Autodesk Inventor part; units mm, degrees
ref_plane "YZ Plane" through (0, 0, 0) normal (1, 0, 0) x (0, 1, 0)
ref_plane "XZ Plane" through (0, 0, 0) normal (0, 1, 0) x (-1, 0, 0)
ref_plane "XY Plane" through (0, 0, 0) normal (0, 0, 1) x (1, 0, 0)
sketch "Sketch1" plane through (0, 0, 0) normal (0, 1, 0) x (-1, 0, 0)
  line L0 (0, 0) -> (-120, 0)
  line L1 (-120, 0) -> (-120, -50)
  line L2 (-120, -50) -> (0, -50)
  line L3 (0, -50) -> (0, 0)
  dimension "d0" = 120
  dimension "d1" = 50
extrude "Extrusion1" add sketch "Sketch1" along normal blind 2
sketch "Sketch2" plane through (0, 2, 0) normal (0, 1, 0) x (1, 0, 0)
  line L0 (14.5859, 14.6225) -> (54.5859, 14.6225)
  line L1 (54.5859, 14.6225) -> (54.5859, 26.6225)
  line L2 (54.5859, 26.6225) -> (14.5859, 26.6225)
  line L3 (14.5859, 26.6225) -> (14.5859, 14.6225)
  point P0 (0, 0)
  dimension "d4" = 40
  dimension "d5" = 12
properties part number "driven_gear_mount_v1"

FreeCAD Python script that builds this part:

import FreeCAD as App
import Part
import Sketcher
from FreeCAD import Vector

doc = App.newDocument("Part")
params = doc.addObject("Spreadsheet::Sheet", "Params")
for row, (alias, value) in enumerate([
    ("sketch1_width", "120 mm"),
    ("sketch1_height", "50 mm"),
    ("pad1_length", "2 mm"),
], start=1):
    params.set(f"A{row}", alias)
    params.set(f"B{row}", "=" + value)
    params.setAlias(f"B{row}", alias)

body = doc.addObject("PartDesign::Body", "Body")

# Sketch on XZ plane
sketch1 = body.newObject("Sketcher::SketchObject", "Sketch")
sketch1.AttachmentSupport = (doc.getObject("XZ_Plane"), [""])
sketch1.MapMode = "FlatFace"
sketch1.addGeometry(Part.LineSegment(Vector(0, -50, 0), Vector(0, 0, 0)), False)
sketch1.addGeometry(Part.LineSegment(Vector(0, 0, 0), Vector(120, 0, 0)), False)
sketch1.addGeometry(Part.LineSegment(Vector(120, 0, 0), Vector(120, -50, 0)), False)
sketch1.addGeometry(Part.LineSegment(Vector(120, -50, 0), Vector(0, -50, 0)), False)
sketch1.addConstraint(Sketcher.Constraint("Coincident", 0, 2, 1, 1))
sketch1.addConstraint(Sketcher.Constraint("Coincident", 1, 2, 2, 1))
sketch1.addConstraint(Sketcher.Constraint("Coincident", 2, 2, 3, 1))
sketch1.addConstraint(Sketcher.Constraint("Coincident", 3, 2, 0, 1))
sketch1.addConstraint(Sketcher.Constraint("Vertical", 0))
sketch1.addConstraint(Sketcher.Constraint("Horizontal", 1))
sketch1.addConstraint(Sketcher.Constraint("Vertical", 2))
sketch1.addConstraint(Sketcher.Constraint("Horizontal", 3))
sketch1.addConstraint(Sketcher.Constraint("Coincident", 0, 2, -1, 1))
sketch1.addConstraint(Sketcher.Constraint("DistanceX", 1, 1, 1, 2, 120.0))
sketch1.addConstraint(Sketcher.Constraint("DistanceY", 0, 1, 0, 2, 50.0))
sketch1.setExpression("Constraints[9]", "Params.sketch1_width")
sketch1.setExpression("Constraints[10]", "Params.sketch1_height")
pad1 = body.newObject("PartDesign::Pad", "Pad")
pad1.Profile = sketch1
pad1.setExpression("Length", "Params.pad1_length")
pad1.Reversed = True

doc.recompute()
